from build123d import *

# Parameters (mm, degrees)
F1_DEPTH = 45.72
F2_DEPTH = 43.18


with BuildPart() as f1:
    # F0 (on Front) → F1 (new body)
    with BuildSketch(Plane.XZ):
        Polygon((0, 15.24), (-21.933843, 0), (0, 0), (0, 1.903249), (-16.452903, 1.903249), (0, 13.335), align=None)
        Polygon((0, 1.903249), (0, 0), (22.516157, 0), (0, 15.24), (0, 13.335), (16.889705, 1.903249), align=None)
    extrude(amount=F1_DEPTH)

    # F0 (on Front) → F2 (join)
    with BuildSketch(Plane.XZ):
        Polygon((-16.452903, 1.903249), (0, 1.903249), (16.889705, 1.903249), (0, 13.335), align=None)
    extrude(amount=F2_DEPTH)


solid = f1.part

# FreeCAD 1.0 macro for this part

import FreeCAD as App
import Part
import Sketcher
from FreeCAD import Vector
Q = App.Units.Quantity

doc = App.newDocument("Part")
params = doc.addObject("Spreadsheet::Sheet", "Params")
for row, (alias, value) in enumerate([
    ("sketch1_width", "1.75 in"),
    ("pad1_length", "1.8 in"),
    ("pad2_length", "1.7 in"),
], start=1):
    params.set(f"A{row}", alias)
    params.set(f"B{row}", "=" + value)
    params.setAlias(f"B{row}", alias)

body = doc.addObject("PartDesign::Body", "Body")

sketch1 = body.newObject("Sketcher::SketchObject", "Sketch")
sketch1.AttachmentSupport = (doc.getObject("XZ_Plane"), [""])
sketch1.MapMode = "FlatFace"
sketch1.addGeometry(Part.LineSegment(Vector(0, 15, 0), Vector(-22, 0, 0)), False)
sketch1.addGeometry(Part.LineSegment(Vector(-22, 0, 0), Vector(23, 0, 0)), False)
sketch1.addGeometry(Part.LineSegment(Vector(23, 0, 0), Vector(0, 15, 0)), False)
sketch1.addGeometry(Part.LineSegment(Vector(-16, 2, 0), Vector(0, 13, 0)), False)
sketch1.addGeometry(Part.LineSegment(Vector(0, 13, 0), Vector(17, 2, 0)), False)
sketch1.addGeometry(Part.LineSegment(Vector(17, 2, 0), Vector(-16, 2, 0)), False)
sketch1.addConstraint(Sketcher.Constraint("Coincident", 0, 2, 1, 1))
sketch1.addConstraint(Sketcher.Constraint("Coincident", 1, 2, 2, 1))
sketch1.addConstraint(Sketcher.Constraint("Coincident", 2, 2, 0, 1))
sketch1.addConstraint(Sketcher.Constraint("Coincident", 3, 2, 4, 1))
sketch1.addConstraint(Sketcher.Constraint("Coincident", 4, 2, 5, 1))
sketch1.addConstraint(Sketcher.Constraint("Coincident", 5, 2, 3, 1))
sketch1.addConstraint(Sketcher.Constraint("Horizontal", 1))
sketch1.addConstraint(Sketcher.Constraint("Horizontal", 5))
sketch1.addConstraint(Sketcher.Constraint("PointOnObject", 0, 2, -1))
sketch1.addConstraint(Sketcher.Constraint("PointOnObject", 2, 2, -2))
sketch1.addConstraint(Sketcher.Constraint("PointOnObject", 3, 2, -2))
sketch1.addConstraint(Sketcher.Constraint("Parallel", 0, 3))
sketch1.addConstraint(Sketcher.Constraint("Parallel", 2, 4))
sketch1.addConstraint(Sketcher.Constraint("DistanceX", 1, 1, 1, 2, Q("1.75 in")))
sketch1.addConstraint(Sketcher.Constraint("DistanceY", -1, 1, 2, 2, Q("0.6 in")))
sketch1.addConstraint(Sketcher.Constraint("DistanceY", -1, 1, 3, 2, Q("0.525 in")))
sketch1.addConstraint(Sketcher.Constraint("Distance", 4, 20.39478))
sketch1.addConstraint(Sketcher.Constraint("DistanceX", 5, 2, 5, 1, 33.342608))
sketch1.setExpression("Constraints[13]", "Params.sketch1_width")
pad1 = body.newObject("PartDesign::Pad", "Pad")
pad1.Profile = sketch1
pad1.setExpression("Length", "Params.pad1_length")

sketch2 = body.newObject("Sketcher::SketchObject", "Sketch001")
sketch2.AttachmentSupport = (doc.getObject("XZ_Plane"), [""])
sketch2.MapMode = "FlatFace"
sketch2.addGeometry(Part.LineSegment(Vector(-16, 2, 0), Vector(17, 2, 0)), False)
sketch2.addGeometry(Part.LineSegment(Vector(17, 2, 0), Vector(0, 13, 0)), False)
sketch2.addGeometry(Part.LineSegment(Vector(0, 13, 0), Vector(-16, 2, 0)), False)
sketch2.addConstraint(Sketcher.Constraint("Coincident", 0, 2, 1, 1))
sketch2.addConstraint(Sketcher.Constraint("Coincident", 1, 2, 2, 1))
sketch2.addConstraint(Sketcher.Constraint("Coincident", 2, 2, 0, 1))
sketch2.addConstraint(Sketcher.Constraint("Horizontal", 0))
sketch2.addConstraint(Sketcher.Constraint("PointOnObject", 1, 2, -2))
sketch2.addConstraint(Sketcher.Constraint("DistanceY", -1, 1, 1, 2, Q("0.525 in")))
sketch2.addConstraint(Sketcher.Constraint("Distance", 1, 20.39478))
sketch2.addConstraint(Sketcher.Constraint("DistanceX", 0, 1, 0, 2, 33.342608))
sketch2.addConstraint(Sketcher.Constraint("DistanceY", -1, 1, 0, 2, 1.903249))
pad2 = body.newObject("PartDesign::Pad", "Pad001")
pad2.Profile = sketch2
pad2.setExpression("Length", "Params.pad2_length")

doc.recompute()
